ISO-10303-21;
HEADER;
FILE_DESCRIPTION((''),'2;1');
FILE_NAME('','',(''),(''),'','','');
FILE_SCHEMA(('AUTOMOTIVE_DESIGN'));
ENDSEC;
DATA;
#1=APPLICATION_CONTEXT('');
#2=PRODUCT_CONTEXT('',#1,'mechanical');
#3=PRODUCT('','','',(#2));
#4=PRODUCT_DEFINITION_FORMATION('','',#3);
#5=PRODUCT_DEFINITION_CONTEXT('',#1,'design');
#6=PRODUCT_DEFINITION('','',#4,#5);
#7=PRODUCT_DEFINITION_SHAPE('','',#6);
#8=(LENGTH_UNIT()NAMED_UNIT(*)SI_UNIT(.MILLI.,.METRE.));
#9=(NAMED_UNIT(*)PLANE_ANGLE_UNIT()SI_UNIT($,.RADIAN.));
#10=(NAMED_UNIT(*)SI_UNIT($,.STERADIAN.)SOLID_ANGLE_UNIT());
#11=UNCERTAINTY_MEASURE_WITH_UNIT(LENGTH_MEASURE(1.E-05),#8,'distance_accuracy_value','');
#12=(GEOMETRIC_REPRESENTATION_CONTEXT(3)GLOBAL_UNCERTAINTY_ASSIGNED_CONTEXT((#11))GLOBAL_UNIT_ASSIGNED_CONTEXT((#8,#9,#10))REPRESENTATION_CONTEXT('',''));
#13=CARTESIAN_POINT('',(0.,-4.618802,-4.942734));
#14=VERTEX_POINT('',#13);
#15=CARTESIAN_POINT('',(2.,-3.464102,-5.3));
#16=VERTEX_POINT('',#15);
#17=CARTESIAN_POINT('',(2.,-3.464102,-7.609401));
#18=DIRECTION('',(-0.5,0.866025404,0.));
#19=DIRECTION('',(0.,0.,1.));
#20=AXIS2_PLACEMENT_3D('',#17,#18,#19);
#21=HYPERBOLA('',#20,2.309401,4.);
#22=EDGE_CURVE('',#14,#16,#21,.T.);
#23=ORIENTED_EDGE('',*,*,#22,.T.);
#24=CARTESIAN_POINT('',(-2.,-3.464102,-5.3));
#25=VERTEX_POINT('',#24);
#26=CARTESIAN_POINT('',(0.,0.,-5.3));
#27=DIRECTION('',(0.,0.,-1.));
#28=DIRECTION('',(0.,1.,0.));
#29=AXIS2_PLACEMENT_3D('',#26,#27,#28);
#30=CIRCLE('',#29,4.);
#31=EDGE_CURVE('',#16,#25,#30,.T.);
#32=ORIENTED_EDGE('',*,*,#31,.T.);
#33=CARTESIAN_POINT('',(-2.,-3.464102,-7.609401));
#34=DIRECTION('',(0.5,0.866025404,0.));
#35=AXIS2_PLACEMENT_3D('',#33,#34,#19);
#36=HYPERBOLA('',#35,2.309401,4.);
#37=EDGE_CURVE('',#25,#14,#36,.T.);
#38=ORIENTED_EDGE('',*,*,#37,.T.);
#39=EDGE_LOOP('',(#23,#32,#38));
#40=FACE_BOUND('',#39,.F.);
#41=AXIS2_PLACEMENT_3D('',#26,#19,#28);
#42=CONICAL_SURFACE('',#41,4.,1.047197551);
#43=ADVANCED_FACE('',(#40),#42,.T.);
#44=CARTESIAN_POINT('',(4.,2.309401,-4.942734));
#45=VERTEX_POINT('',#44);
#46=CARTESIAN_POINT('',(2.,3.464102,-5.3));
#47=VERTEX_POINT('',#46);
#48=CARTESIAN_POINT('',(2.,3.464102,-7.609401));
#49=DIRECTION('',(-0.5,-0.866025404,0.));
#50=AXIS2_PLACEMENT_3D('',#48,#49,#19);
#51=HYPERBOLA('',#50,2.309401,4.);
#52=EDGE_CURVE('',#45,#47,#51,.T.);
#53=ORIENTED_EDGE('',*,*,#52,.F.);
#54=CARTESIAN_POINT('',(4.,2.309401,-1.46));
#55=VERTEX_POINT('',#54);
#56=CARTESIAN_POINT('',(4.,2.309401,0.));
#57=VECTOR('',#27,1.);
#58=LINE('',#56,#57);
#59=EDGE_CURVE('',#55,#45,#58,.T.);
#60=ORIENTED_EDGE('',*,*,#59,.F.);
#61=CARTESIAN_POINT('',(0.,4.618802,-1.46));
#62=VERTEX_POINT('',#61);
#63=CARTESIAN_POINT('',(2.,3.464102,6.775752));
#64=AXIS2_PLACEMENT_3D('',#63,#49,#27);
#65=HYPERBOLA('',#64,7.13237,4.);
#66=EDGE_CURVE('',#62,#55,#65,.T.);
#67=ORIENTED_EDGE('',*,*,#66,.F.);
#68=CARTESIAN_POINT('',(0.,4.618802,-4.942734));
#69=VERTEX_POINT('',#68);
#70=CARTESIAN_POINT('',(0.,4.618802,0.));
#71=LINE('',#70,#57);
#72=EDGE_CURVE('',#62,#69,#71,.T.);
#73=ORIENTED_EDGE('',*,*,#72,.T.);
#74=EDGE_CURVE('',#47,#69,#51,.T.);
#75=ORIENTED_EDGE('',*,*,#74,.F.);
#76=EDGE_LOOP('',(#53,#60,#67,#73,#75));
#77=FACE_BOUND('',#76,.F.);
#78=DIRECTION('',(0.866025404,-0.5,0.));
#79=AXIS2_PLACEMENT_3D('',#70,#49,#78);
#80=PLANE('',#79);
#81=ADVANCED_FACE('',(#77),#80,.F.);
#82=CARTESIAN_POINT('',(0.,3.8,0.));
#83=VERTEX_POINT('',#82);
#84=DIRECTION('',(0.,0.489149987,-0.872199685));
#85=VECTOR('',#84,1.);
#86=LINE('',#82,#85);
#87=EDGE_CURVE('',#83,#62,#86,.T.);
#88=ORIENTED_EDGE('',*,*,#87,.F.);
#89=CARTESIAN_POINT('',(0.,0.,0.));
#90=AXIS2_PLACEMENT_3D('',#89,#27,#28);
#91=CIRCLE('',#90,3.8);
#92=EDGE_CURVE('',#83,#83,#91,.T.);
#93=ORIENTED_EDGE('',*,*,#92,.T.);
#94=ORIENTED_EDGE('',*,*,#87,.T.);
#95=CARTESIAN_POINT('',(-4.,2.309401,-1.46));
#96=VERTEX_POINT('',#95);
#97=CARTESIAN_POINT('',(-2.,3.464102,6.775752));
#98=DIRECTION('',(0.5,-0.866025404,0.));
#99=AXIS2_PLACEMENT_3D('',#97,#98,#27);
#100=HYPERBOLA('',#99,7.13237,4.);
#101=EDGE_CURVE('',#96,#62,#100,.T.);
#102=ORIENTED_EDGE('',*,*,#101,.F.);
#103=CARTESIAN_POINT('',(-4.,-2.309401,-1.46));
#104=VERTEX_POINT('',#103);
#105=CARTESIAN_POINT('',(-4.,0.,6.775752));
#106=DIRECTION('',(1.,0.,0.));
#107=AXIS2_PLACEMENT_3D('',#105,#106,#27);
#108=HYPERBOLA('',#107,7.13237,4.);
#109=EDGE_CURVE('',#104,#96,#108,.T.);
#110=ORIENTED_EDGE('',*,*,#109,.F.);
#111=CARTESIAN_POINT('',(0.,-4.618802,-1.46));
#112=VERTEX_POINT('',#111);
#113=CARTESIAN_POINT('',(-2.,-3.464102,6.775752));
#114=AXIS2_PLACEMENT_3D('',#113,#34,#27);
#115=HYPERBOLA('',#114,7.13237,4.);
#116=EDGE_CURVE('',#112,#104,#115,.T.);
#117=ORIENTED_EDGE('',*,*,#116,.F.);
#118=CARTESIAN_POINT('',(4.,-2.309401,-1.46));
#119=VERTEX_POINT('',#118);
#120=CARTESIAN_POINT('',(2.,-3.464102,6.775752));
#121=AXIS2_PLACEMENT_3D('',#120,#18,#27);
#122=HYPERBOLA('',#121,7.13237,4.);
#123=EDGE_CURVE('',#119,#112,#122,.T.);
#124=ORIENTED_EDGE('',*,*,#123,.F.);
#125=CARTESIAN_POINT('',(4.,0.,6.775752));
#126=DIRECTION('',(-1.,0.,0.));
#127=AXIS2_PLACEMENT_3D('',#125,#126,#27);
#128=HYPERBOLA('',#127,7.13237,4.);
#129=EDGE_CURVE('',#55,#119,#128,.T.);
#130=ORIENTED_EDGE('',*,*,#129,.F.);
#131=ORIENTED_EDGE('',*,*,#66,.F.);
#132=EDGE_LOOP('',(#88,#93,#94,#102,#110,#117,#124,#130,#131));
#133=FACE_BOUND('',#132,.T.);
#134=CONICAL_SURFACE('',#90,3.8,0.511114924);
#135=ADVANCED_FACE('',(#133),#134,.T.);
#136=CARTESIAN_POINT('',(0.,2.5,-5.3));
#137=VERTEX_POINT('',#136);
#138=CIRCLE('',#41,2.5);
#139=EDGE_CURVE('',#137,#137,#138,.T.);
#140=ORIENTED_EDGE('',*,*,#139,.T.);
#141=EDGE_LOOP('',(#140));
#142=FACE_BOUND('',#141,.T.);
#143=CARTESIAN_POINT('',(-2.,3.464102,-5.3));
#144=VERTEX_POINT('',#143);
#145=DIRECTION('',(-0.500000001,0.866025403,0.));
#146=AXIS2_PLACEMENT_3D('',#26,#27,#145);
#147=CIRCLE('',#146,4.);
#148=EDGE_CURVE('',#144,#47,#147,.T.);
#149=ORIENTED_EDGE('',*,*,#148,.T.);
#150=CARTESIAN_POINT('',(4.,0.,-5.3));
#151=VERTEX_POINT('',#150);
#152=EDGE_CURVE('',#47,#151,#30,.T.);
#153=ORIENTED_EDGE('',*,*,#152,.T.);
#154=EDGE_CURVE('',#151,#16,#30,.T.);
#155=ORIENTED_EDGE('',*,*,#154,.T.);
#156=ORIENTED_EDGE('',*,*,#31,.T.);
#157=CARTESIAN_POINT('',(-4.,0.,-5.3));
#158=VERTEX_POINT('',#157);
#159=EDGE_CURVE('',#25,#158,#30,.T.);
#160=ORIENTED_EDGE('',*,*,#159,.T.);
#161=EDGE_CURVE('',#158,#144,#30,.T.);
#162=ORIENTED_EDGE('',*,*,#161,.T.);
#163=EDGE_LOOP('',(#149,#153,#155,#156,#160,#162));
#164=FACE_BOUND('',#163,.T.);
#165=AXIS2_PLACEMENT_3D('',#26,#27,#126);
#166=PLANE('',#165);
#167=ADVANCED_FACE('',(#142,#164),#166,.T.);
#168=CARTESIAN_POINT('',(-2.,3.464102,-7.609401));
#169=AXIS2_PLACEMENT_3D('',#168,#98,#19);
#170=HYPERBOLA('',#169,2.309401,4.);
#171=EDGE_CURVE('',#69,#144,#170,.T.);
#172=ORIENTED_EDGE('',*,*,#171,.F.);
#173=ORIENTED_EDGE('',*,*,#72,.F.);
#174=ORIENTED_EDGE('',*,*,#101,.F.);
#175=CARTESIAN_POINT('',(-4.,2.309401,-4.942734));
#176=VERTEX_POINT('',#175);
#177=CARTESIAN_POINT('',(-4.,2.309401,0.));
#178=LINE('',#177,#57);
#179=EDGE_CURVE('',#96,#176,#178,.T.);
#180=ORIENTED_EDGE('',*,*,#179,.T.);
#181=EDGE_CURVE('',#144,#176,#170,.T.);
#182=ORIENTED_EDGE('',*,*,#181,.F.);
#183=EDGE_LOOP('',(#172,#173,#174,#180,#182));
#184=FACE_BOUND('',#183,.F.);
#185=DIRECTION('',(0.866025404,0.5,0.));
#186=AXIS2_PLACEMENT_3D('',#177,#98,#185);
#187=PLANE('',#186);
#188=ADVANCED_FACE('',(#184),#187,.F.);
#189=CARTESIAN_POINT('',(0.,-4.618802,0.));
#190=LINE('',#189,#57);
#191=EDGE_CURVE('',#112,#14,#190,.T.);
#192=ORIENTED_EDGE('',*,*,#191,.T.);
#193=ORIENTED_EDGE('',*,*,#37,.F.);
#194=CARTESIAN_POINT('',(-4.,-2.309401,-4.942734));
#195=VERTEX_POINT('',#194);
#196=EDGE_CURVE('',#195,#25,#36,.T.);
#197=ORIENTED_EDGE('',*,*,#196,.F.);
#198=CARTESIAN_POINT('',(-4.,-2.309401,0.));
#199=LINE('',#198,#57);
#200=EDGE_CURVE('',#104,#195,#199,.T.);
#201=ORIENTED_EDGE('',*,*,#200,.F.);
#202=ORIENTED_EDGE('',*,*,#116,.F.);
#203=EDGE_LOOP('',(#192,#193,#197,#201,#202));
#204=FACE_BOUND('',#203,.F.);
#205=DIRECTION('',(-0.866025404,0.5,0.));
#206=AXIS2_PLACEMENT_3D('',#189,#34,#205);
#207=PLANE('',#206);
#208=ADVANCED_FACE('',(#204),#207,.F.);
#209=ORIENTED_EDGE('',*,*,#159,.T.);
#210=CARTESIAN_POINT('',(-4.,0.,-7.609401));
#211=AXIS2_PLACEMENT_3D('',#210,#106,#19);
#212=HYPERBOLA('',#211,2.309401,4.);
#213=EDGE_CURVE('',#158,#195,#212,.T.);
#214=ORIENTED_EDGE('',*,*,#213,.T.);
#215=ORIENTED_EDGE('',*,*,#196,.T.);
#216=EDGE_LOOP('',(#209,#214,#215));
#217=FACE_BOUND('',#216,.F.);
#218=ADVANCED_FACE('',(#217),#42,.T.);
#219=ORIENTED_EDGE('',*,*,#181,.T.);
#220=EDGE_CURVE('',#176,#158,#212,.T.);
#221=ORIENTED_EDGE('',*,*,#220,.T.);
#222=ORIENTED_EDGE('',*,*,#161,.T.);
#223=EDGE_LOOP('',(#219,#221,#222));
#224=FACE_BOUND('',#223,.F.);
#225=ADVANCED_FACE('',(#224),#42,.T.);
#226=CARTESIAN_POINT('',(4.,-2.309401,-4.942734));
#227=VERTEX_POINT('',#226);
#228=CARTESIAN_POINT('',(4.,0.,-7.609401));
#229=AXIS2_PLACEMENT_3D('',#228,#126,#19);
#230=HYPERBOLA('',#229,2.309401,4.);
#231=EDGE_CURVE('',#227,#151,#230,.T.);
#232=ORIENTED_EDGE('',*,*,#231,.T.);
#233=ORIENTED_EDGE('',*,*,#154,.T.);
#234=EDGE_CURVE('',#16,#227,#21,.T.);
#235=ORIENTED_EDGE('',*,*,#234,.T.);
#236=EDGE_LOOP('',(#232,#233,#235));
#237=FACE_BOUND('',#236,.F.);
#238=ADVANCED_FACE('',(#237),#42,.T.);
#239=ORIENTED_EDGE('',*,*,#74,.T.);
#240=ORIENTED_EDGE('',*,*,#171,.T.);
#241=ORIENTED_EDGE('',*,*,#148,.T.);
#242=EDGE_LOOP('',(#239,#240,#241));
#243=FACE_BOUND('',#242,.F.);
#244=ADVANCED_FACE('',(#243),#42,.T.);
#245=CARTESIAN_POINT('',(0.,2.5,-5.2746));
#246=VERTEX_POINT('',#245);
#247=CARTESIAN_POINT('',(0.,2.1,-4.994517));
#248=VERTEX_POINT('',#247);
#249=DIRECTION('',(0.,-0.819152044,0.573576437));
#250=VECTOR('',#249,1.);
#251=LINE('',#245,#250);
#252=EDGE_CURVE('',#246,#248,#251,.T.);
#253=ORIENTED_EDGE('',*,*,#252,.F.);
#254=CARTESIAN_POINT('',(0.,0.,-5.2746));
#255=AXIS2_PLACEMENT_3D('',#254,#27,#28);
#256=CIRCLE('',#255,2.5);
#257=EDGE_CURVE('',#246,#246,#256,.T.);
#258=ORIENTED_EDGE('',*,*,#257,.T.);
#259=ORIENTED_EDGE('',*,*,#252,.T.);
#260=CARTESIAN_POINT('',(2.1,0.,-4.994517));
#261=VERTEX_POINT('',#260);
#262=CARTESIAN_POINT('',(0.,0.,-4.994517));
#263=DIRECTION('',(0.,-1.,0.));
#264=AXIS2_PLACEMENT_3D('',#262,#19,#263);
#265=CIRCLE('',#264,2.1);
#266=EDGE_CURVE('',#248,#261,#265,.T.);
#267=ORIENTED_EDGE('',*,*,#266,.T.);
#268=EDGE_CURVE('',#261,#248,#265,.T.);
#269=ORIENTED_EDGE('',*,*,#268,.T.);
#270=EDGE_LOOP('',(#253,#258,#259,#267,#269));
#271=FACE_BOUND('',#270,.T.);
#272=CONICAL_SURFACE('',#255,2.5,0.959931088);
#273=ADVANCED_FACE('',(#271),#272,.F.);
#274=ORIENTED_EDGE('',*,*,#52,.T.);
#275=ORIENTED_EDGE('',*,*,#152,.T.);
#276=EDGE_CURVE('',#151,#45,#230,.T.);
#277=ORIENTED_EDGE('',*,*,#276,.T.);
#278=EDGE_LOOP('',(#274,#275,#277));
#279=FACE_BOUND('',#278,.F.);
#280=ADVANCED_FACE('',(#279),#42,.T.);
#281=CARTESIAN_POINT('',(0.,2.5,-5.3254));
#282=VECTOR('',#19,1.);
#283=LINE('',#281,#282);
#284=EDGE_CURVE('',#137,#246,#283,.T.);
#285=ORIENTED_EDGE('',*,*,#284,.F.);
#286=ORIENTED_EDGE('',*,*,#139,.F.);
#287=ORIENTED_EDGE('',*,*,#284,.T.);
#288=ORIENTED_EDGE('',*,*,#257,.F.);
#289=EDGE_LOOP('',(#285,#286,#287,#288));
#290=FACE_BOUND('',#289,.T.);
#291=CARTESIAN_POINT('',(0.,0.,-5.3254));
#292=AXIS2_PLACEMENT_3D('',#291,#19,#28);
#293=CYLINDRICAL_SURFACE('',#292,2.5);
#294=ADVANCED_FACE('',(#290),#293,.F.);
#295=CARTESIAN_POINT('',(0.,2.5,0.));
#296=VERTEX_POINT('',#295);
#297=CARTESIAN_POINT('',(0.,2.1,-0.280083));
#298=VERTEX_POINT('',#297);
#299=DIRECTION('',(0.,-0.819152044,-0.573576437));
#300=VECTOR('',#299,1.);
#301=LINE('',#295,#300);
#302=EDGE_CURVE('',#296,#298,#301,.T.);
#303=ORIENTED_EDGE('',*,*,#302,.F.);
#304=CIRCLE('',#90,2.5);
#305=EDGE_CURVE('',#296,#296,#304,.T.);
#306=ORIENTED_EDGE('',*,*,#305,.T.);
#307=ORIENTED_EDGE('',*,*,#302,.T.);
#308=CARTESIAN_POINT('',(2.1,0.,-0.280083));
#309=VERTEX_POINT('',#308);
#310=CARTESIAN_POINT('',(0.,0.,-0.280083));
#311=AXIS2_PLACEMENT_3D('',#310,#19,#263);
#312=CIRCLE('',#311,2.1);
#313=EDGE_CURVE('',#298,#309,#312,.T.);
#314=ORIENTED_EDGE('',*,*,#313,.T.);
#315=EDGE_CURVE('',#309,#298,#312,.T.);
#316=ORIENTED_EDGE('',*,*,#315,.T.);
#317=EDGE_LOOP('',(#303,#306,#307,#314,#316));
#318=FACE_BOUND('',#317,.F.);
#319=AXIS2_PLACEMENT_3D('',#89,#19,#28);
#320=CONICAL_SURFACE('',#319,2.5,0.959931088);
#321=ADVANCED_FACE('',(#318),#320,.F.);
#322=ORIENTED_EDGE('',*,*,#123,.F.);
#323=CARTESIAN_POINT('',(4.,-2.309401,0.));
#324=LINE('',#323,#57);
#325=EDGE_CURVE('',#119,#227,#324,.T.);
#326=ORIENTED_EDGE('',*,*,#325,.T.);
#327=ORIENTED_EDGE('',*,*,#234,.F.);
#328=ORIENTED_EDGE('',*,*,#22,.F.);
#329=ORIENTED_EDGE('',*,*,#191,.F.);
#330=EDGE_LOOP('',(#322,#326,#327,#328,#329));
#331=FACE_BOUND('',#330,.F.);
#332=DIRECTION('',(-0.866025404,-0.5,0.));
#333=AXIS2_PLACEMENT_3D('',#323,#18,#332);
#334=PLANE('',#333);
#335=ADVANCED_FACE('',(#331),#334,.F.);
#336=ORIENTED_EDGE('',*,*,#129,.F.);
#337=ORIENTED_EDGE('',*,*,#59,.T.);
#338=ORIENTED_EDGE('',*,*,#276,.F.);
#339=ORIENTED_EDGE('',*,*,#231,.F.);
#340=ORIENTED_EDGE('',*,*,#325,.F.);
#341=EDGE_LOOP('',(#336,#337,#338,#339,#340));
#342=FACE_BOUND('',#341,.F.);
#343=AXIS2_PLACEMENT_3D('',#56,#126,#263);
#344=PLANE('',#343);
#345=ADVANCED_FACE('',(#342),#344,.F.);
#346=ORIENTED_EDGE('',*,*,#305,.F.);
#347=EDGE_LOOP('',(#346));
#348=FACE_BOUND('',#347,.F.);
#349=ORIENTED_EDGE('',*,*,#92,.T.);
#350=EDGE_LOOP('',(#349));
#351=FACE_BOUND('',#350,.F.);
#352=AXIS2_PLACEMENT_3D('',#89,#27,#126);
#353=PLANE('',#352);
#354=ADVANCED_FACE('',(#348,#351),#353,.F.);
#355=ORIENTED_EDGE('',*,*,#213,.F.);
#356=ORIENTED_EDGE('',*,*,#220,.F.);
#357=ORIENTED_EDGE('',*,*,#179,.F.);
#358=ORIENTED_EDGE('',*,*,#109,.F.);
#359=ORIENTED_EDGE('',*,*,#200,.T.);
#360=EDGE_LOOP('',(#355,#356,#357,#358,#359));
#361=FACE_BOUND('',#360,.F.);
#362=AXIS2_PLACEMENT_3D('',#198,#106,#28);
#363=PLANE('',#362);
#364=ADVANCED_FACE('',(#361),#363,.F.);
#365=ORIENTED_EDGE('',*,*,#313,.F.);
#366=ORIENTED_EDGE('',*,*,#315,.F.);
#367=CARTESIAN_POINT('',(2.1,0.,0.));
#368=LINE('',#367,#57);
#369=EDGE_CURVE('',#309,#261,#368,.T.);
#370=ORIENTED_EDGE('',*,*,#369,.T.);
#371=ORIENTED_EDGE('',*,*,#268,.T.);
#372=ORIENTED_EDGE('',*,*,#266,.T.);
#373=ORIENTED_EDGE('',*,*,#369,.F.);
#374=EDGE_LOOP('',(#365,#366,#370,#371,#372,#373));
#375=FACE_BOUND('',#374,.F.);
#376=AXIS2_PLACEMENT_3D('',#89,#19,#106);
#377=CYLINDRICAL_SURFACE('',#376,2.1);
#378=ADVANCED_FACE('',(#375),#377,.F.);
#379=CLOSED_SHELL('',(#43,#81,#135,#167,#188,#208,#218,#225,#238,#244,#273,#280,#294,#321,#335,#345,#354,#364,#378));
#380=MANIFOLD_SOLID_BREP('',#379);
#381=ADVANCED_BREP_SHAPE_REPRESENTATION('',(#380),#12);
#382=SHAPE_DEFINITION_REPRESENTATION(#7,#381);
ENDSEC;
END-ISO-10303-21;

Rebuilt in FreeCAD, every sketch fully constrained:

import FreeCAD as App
import Part
import Sketcher
from FreeCAD import Vector
Q = App.Units.Quantity

doc = App.newDocument("Part")
body = doc.addObject("PartDesign::Body", "Body")

# Sketch on XY plane
sketch1 = doc.addObject("Sketcher::SketchObject", "Sketch")
body.addObject(sketch1)
sketch1.AttachmentSupport = (doc.XY_Plane, [""])
sketch1.MapMode = "FlatFace"
sketch1.addGeometry([
    Part.LineSegment(Vector(4, -2.3, 0), Vector(4, 2.3, 0)),  # 0
    Part.LineSegment(Vector(4, 2.3, 0), Vector(0, 4.6, 0)),  # 1
    Part.LineSegment(Vector(0, 4.6, 0), Vector(-4, 2.3, 0)),  # 2
    Part.LineSegment(Vector(-4, 2.3, 0), Vector(-4, -2.3, 0)),  # 3
    Part.LineSegment(Vector(-4, -2.3, 0), Vector(0, -4.6, 0)),  # 4
    Part.LineSegment(Vector(0, -4.6, 0), Vector(4, -2.3, 0)),  # 5
    Part.Circle(Vector(0, 0, 0), Vector(0, 0, 1), 2.1),  # 6
], False)
sketch1.addConstraint([
    Sketcher.Constraint("Coincident", 0, 2, 1, 1),
    Sketcher.Constraint("Coincident", 1, 2, 2, 1),
    Sketcher.Constraint("Coincident", 2, 2, 3, 1),
    Sketcher.Constraint("Coincident", 3, 2, 4, 1),
    Sketcher.Constraint("Coincident", 4, 2, 5, 1),
    Sketcher.Constraint("Coincident", 5, 2, 0, 1),
    Sketcher.Constraint("Vertical", 0),
    Sketcher.Constraint("Vertical", 3),
    Sketcher.Constraint("Coincident", 6, 3, -1, 1),
    Sketcher.Constraint("Symmetric", 0, 2, 3, 2, -1, 1),
    Sketcher.Constraint("Symmetric", 1, 2, 4, 2, -1, 1),
    Sketcher.Constraint("PointOnObject", 1, 2, -2),
    Sketcher.Constraint("Parallel", 2, 5),
    Sketcher.Constraint("Horizontal", 0, 2, 2, 2),
    Sketcher.Constraint("Diameter", 6, Q("4.2 mm")),
    Sketcher.Constraint("Angle", 1, Q("150 deg")),
    Sketcher.Constraint("DistanceX", -1, 1, 0, 2, Q("4 mm")),
    Sketcher.Constraint("DistanceY", -1, 1, 0, 2, Q("2.309401 mm")),
])
pad1 = doc.addObject("PartDesign::Pad", "Pad")
body.addObject(pad1)
pad1.Profile = sketch1
pad1.Length = 5.3
pad1.Reversed = True

# Sketch on YZ plane
sketch2 = doc.addObject("Sketcher::SketchObject", "Sketch001")
body.addObject(sketch2)
sketch2.AttachmentSupport = (doc.YZ_Plane, [""])
sketch2.MapMode = "FlatFace"
sketch2.addGeometry([
    Part.LineSegment(Vector(4.6, -4.9, 0), Vector(4, -5.3, 0)),  # 0
    Part.LineSegment(Vector(4, -5.3, 0), Vector(4, -15.3, 0)),  # 1
    Part.LineSegment(Vector(4, -15.3, 0), Vector(14.6, -15.3, 0)),  # 2
    Part.LineSegment(Vector(14.6, -15.3, 0), Vector(14.6, -4.9, 0)),  # 3
    Part.LineSegment(Vector(14.6, -4.9, 0), Vector(4.6, -4.9, 0)),  # 4
    Part.LineSegment(Vector(14.6, -1.5, 0), Vector(14.6, 10, 0)),  # 5
    Part.LineSegment(Vector(14.6, 10, 0), Vector(3.8, 10, 0)),  # 6
    Part.LineSegment(Vector(3.8, 10, 0), Vector(3.8, 0, 0)),  # 7
    Part.LineSegment(Vector(3.8, 0, 0), Vector(4.6, -1.5, 0)),  # 8
    Part.LineSegment(Vector(4.6, -1.5, 0), Vector(14.6, -1.5, 0)),  # 9
], False)
sketch2.addConstraint([
    Sketcher.Constraint("Coincident", 0, 2, 1, 1),
    Sketcher.Constraint("Coincident", 1, 2, 2, 1),
    Sketcher.Constraint("Coincident", 2, 2, 3, 1),
    Sketcher.Constraint("Coincident", 3, 2, 4, 1),
    Sketcher.Constraint("Coincident", 4, 2, 0, 1),
    Sketcher.Constraint("Coincident", 5, 2, 6, 1),
    Sketcher.Constraint("Coincident", 6, 2, 7, 1),
    Sketcher.Constraint("Coincident", 7, 2, 8, 1),
    Sketcher.Constraint("Coincident", 8, 2, 9, 1),
    Sketcher.Constraint("Coincident", 9, 2, 5, 1),
    Sketcher.Constraint("Vertical", 1),
    Sketcher.Constraint("Horizontal", 2),
    Sketcher.Constraint("Vertical", 3),
    Sketcher.Constraint("Horizontal", 4),
    Sketcher.Constraint("Vertical", 5),
    Sketcher.Constraint("Horizontal", 6),
    Sketcher.Constraint("Vertical", 7),
    Sketcher.Constraint("Horizontal", 9),
    Sketcher.Constraint("PointOnObject", 7, 2, -1),
    Sketcher.Constraint("Vertical", 3, 2, 5, 2),
    Sketcher.Constraint("Vertical", 4, 2, 8, 2),
    Sketcher.Constraint("Equal", 9, 1),
    Sketcher.Constraint("Equal", 1, 7),
    Sketcher.Constraint("DistanceX", 4, 2, 4, 1, Q("10 mm")),
    Sketcher.Constraint("Angle", 0, Q("-150 deg")),
    Sketcher.Constraint("DistanceX", -1, 1, 0, 2, Q("4 mm")),
    Sketcher.Constraint("DistanceY", 5, 1, 5, 2, Q("11.46 mm")),
    Sketcher.Constraint("DistanceY", 0, 2, -1, 1, Q("5.3 mm")),
    Sketcher.Constraint("DistanceX", -1, 1, 6, 2, Q("3.8 mm")),
    Sketcher.Constraint("Distance", 0, Q("0.714531 mm")),
])
groove = doc.addObject("PartDesign::Groove", "Groove")
body.addObject(groove)
groove.Profile = sketch2
groove.ReferenceAxis = (sketch2, ["V_Axis"])
groove.Angle = 360

# Sketch on YZ plane
sketch3 = doc.addObject("Sketcher::SketchObject", "Sketch002")
body.addObject(sketch3)
sketch3.AttachmentSupport = (doc.YZ_Plane, [""])
sketch3.MapMode = "FlatFace"
sketch3.addGeometry([
    Part.LineSegment(Vector(2.5, -5.27, 0), Vector(2.06, -4.97, 0)),  # 0
    Part.LineSegment(Vector(2.06, -4.97, 0), Vector(2.06, -5.33, 0)),  # 1
    Part.LineSegment(Vector(2.06, -5.33, 0), Vector(2.5, -5.33, 0)),  # 2
    Part.LineSegment(Vector(2.5, -5.33, 0), Vector(2.5, -5.27, 0)),  # 3
    Part.LineSegment(Vector(2.5, 0, 0), Vector(2.5, 0.05, 0)),  # 4
    Part.LineSegment(Vector(2.5, 0.05, 0), Vector(2.06, 0.05, 0)),  # 5
    Part.LineSegment(Vector(2.06, 0.05, 0), Vector(2.06, -0.31, 0)),  # 6
    Part.LineSegment(Vector(2.06, -0.31, 0), Vector(2.5, 0, 0)),  # 7
], False)
sketch3.addConstraint([
    Sketcher.Constraint("Coincident", 0, 2, 1, 1),
    Sketcher.Constraint("Coincident", 1, 2, 2, 1),
    Sketcher.Constraint("Coincident", 2, 2, 3, 1),
    Sketcher.Constraint("Coincident", 3, 2, 0, 1),
    Sketcher.Constraint("Coincident", 4, 2, 5, 1),
    Sketcher.Constraint("Coincident", 5, 2, 6, 1),
    Sketcher.Constraint("Coincident", 6, 2, 7, 1),
    Sketcher.Constraint("Coincident", 7, 2, 4, 1),
    Sketcher.Constraint("Vertical", 1),
    Sketcher.Constraint("Horizontal", 2),
    Sketcher.Constraint("Vertical", 3),
    Sketcher.Constraint("Vertical", 4),
    Sketcher.Constraint("Horizontal", 5),
    Sketcher.Constraint("Vertical", 6),
    Sketcher.Constraint("PointOnObject", 7, 2, -1),
    Sketcher.Constraint("Vertical", 3, 2, 4, 2),
    Sketcher.Constraint("Vertical", 1, 2, 5, 2),
    Sketcher.Constraint("Equal", 3, 4),
    Sketcher.Constraint("Equal", 1, 6),
    Sketcher.Constraint("Angle", 0, Q("145 deg")),
    Sketcher.Constraint("DistanceX", 2, 1, 2, 2, Q("0.44 mm")),
    Sketcher.Constraint("DistanceX", -1, 1, 2, 2, Q("2.5 mm")),
    Sketcher.Constraint("DistanceY", 3, 1, 3, 2, Q("0.0508 mm")),
    Sketcher.Constraint("DistanceY", 1, 2, -1, 1, Q("5.3254 mm")),
])
groove2 = doc.addObject("PartDesign::Groove", "Groove001")
body.addObject(groove2)
groove2.Profile = sketch3
groove2.ReferenceAxis = (sketch3, ["V_Axis"])
groove2.Angle = 360

doc.recompute()
